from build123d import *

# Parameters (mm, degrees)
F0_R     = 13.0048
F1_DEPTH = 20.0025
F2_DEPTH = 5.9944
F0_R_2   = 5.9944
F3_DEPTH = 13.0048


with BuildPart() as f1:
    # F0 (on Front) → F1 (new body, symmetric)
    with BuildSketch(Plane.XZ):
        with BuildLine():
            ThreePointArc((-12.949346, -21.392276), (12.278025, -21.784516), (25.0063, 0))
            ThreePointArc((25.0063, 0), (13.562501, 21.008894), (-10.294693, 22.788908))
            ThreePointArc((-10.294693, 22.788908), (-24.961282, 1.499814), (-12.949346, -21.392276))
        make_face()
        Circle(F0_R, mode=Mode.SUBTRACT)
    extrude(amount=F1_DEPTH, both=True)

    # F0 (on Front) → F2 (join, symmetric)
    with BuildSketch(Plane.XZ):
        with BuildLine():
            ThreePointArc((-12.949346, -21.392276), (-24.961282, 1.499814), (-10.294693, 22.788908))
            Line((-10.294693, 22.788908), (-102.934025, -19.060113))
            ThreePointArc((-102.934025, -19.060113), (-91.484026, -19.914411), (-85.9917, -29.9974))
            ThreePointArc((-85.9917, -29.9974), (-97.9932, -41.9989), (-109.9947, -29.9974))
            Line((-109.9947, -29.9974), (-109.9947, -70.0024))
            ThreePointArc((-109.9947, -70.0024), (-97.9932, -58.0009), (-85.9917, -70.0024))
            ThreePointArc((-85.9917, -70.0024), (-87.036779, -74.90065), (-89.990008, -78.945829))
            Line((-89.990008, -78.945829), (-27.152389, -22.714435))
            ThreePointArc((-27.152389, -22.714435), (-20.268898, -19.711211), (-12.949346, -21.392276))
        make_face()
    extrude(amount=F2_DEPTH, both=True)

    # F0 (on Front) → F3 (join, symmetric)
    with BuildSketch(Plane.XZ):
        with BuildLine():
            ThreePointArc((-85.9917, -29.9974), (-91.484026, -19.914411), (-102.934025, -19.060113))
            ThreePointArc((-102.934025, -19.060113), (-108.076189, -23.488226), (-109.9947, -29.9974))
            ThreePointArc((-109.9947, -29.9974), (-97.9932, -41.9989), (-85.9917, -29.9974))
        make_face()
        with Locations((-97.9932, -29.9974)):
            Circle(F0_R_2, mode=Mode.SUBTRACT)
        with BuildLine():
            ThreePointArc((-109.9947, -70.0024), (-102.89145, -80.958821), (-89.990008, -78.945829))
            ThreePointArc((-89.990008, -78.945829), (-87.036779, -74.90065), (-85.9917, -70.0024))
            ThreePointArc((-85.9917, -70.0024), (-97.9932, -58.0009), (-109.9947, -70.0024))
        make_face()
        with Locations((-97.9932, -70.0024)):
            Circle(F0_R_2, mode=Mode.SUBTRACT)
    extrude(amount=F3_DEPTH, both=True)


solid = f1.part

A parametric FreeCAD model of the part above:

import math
import FreeCAD as App
import Part
import Sketcher
Q = App.Units.Quantity

doc = App.newDocument("Part")
body = doc.addObject("PartDesign::Body", "Body")

# Sketch on XZ plane
sketch1 = body.newObject("Sketcher::SketchObject", "Sketch")
sketch1.AttachmentSupport = (doc.getObject("XZ_Plane"), [""])
sketch1.MapMode = "FlatFace"
sketch1.addGeometry(Part.ArcOfCircle(Part.Circle(App.Vector(0, 0, 0), App.Vector(0, 0, 1), 25.0063), math.radians(-121.187698), math.radians(0)), False)
sketch1.addGeometry(Part.ArcOfCircle(Part.Circle(App.Vector(0.000001, 0.000001, 0), App.Vector(0, 0, 1), 25.006299), math.radians(-0.000002), math.radians(114.310666)), False)
sketch1.addGeometry(Part.ArcOfCircle(Part.Circle(App.Vector(0, 0, 0), App.Vector(0, 0, 1), 25.0063), math.radians(114.310663), math.radians(238.812302)), False)
sketch1.addGeometry(Part.Circle(App.Vector(0, 0, 0), App.Vector(0, 0, 1), 13.0048), False)
sketch1.addConstraint(Sketcher.Constraint("Tangent", 0, 2, 1, 1))
sketch1.addConstraint(Sketcher.Constraint("Tangent", 1, 2, 2, 1))
sketch1.addConstraint(Sketcher.Constraint("Tangent", 2, 2, 0, 1))
sketch1.addConstraint(Sketcher.Constraint("Coincident", 0, 3, -1, 1))
sketch1.addConstraint(Sketcher.Constraint("Coincident", 3, 3, -1, 1))
sketch1.addConstraint(Sketcher.Constraint("PointOnObject", 0, 2, -1))
sketch1.addConstraint(Sketcher.Constraint("Diameter", 3, Q("1.024 in")))
sketch1.addConstraint(Sketcher.Constraint("Radius", 0, Q("0.9845 in")))
sketch1.addConstraint(Sketcher.Constraint("DistanceY", -1, 1, 1, 2, 22.788908))
sketch1.addConstraint(Sketcher.Constraint("DistanceX", 2, 2, -1, 1, 12.949346))
pad1 = body.newObject("PartDesign::Pad", "Pad")
pad1.Profile = sketch1
pad1.Length = Q("1.575 in")
pad1.Midplane = True

# Sketch on XZ plane
sketch2 = body.newObject("Sketcher::SketchObject", "Sketch001")
sketch2.AttachmentSupport = (doc.getObject("XZ_Plane"), [""])
sketch2.MapMode = "FlatFace"
sketch2.addGeometry(Part.ArcOfCircle(Part.Circle(App.Vector(0, 0, 0), App.Vector(0, 0, 1), 25.0063), math.radians(114.310663), math.radians(238.812302)), False)
sketch2.addGeometry(Part.LineSegment(App.Vector(-10.294693, 22.788908, 0), App.Vector(-102.934025, -19.060113, 0)), False)
sketch2.addGeometry(Part.ArcOfCircle(Part.Circle(App.Vector(-97.993199, -29.997399, 0), App.Vector(0, 0, 1), 12.001499), math.radians(-0.000004), math.radians(114.310668)), False)
sketch2.addGeometry(Part.ArcOfCircle(Part.Circle(App.Vector(-97.9932, -29.9974, 0), App.Vector(0, 0, 1), 12.0015), math.radians(180), math.radians(360)), False)
sketch2.addGeometry(Part.LineSegment(App.Vector(-109.9947, -29.9974, 0), App.Vector(-109.9947, -70.0024, 0)), False)
sketch2.addGeometry(Part.ArcOfCircle(Part.Circle(App.Vector(-97.9932, -70.0024, 0), App.Vector(0, 0, 1), 12.0015), math.radians(0), math.radians(180)), False)
sketch2.addGeometry(Part.ArcOfCircle(Part.Circle(App.Vector(-97.993195, -70.002402, 0), App.Vector(0, 0, 1), 12.001495), math.radians(-48.175654), math.radians(0.000011)), False)
sketch2.addGeometry(Part.LineSegment(App.Vector(-89.990008, -78.945829, 0), App.Vector(-27.152389, -22.714435, 0)), False)
sketch2.addGeometry(Part.ArcOfCircle(Part.Circle(App.Vector(-19.157666, -31.648401, 0), App.Vector(0, 0, 1), 11.9888), math.radians(58.812303), math.radians(131.824352)), False)
sketch2.addConstraint(Sketcher.Constraint("Tangent", 0, 1, 1, 1))
sketch2.addConstraint(Sketcher.Constraint("Tangent", 1, 2, 2, 2))
sketch2.addConstraint(Sketcher.Constraint("Tangent", 2, 1, 3, 2))
sketch2.addConstraint(Sketcher.Constraint("Tangent", 3, 1, 4, 1))
sketch2.addConstraint(Sketcher.Constraint("Tangent", 4, 2, 5, 2))
sketch2.addConstraint(Sketcher.Constraint("Tangent", 5, 1, 6, 2))
sketch2.addConstraint(Sketcher.Constraint("Tangent", 6, 1, 7, 1))
sketch2.addConstraint(Sketcher.Constraint("Tangent", 7, 2, 8, 2))
sketch2.addConstraint(Sketcher.Constraint("Tangent", 8, 1, 0, 2))
sketch2.addConstraint(Sketcher.Constraint("Vertical", 4))
sketch2.addConstraint(Sketcher.Constraint("Coincident", 0, 3, -1, 1))
sketch2.addConstraint(Sketcher.Constraint("Equal", 2, 3))
sketch2.addConstraint(Sketcher.Constraint("Equal", 3, 5))
sketch2.addConstraint(Sketcher.Constraint("Horizontal", 3, 3, 2, 1))
sketch2.addConstraint(Sketcher.Constraint("Horizontal", 4, 2, 5, 1))
sketch2.addConstraint(Sketcher.Constraint("Radius", 8, Q("0.472 in")))
sketch2.addConstraint(Sketcher.Constraint("Radius", 0, Q("0.9845 in")))
sketch2.addConstraint(Sketcher.Constraint("Radius", 2, Q("0.4725 in")))
sketch2.addConstraint(Sketcher.Constraint("Radius", 6, Q("0.4724998 in")))
sketch2.addConstraint(Sketcher.Constraint("DistanceY", 4, 2, 4, 1, Q("1.575 in")))
sketch2.addConstraint(Sketcher.Constraint("DistanceY", 6, 3, 8, 3, Q("1.5100001 in")))
sketch2.addConstraint(Sketcher.Constraint("DistanceX", 2, 3, -1, 1, Q("3.858 in")))
sketch2.addConstraint(Sketcher.Constraint("DistanceY", 2, 3, -1, 1, Q("1.181 in")))
pad2 = body.newObject("PartDesign::Pad", "Pad001")
pad2.Profile = sketch2
pad2.Length = Q("0.472 in")
pad2.Midplane = True

# Sketch on XZ plane
sketch3 = body.newObject("Sketcher::SketchObject", "Sketch002")
sketch3.AttachmentSupport = (doc.getObject("XZ_Plane"), [""])
sketch3.MapMode = "FlatFace"
sketch3.addGeometry(Part.ArcOfCircle(Part.Circle(App.Vector(-97.993199, -29.997399, 0), App.Vector(0, 0, 1), 12.001499), math.radians(-0.000004), math.radians(114.310668)), False)
sketch3.addGeometry(Part.ArcOfCircle(Part.Circle(App.Vector(-97.993203, -29.997398, 0), App.Vector(0, 0, 1), 12.001497), math.radians(114.310653), math.radians(180.000008)), False)
sketch3.addGeometry(Part.ArcOfCircle(Part.Circle(App.Vector(-97.9932, -29.9974, 0), App.Vector(0, 0, 1), 12.0015), math.radians(180), math.radians(360)), False)
sketch3.addGeometry(Part.Circle(App.Vector(-97.9932, -29.9974, 0), App.Vector(0, 0, 1), 5.9944), False)
sketch3.addGeometry(Part.ArcOfCircle(Part.Circle(App.Vector(-97.9932, -70.002401, 0), App.Vector(0, 0, 1), 12.0015), math.radians(179.999997), math.radians(311.824359)), False)
sketch3.addGeometry(Part.ArcOfCircle(Part.Circle(App.Vector(-97.993195, -70.002402, 0), App.Vector(0, 0, 1), 12.001495), math.radians(-48.175654), math.radians(0.000011)), False)
sketch3.addGeometry(Part.ArcOfCircle(Part.Circle(App.Vector(-97.9932, -70.0024, 0), App.Vector(0, 0, 1), 12.0015), math.radians(0), math.radians(180)), False)
sketch3.addGeometry(Part.Circle(App.Vector(-97.9932, -70.0024, 0), App.Vector(0, 0, 1), 5.9944), False)
sketch3.addConstraint(Sketcher.Constraint("Tangent", 0, 2, 1, 1))
sketch3.addConstraint(Sketcher.Constraint("Tangent", 1, 2, 2, 1))
sketch3.addConstraint(Sketcher.Constraint("Tangent", 2, 2, 0, 1))
sketch3.addConstraint(Sketcher.Constraint("Tangent", 4, 2, 5, 1))
sketch3.addConstraint(Sketcher.Constraint("Tangent", 5, 2, 6, 1))
sketch3.addConstraint(Sketcher.Constraint("Tangent", 6, 2, 4, 1))
sketch3.addConstraint(Sketcher.Constraint("Coincident", 3, 3, 0, 3))
sketch3.addConstraint(Sketcher.Constraint("Coincident", 7, 3, 4, 3))
sketch3.addConstraint(Sketcher.Constraint("Equal", 2, 4))
sketch3.addConstraint(Sketcher.Constraint("Equal", 3, 7))
sketch3.addConstraint(Sketcher.Constraint("Horizontal", 3, 3, 1, 2))
sketch3.addConstraint(Sketcher.Constraint("Horizontal", 1, 2, 2, 2))
sketch3.addConstraint(Sketcher.Constraint("Horizontal", 7, 3, 5, 2))
sketch3.addConstraint(Sketcher.Constraint("Horizontal", 5, 2, 6, 2))
sketch3.addConstraint(Sketcher.Constraint("Vertical", 3, 3, 4, 3))
sketch3.addConstraint(Sketcher.Constraint("Diameter", 3, Q("0.472 in")))
sketch3.addConstraint(Sketcher.Constraint("Radius", 0, Q("0.4725 in")))
sketch3.addConstraint(Sketcher.Constraint("DistanceX", 0, 3, -1, 1, Q("3.858 in")))
sketch3.addConstraint(Sketcher.Constraint("DistanceY", 0, 3, -1, 1, Q("1.181 in")))
sketch3.addConstraint(Sketcher.Constraint("DistanceY", 4, 3, -1, 1, Q("2.756 in")))
sketch3.addConstraint(Sketcher.Constraint("DistanceY", 4, 2, -1, 1, 78.945829))
sketch3.addConstraint(Sketcher.Constraint("DistanceX", 0, 2, -1, 1, 102.934025))
pad3 = body.newObject("PartDesign::Pad", "Pad002")
pad3.Profile = sketch3
pad3.Length = Q("1.024 in")
pad3.Midplane = True

doc.recompute()
